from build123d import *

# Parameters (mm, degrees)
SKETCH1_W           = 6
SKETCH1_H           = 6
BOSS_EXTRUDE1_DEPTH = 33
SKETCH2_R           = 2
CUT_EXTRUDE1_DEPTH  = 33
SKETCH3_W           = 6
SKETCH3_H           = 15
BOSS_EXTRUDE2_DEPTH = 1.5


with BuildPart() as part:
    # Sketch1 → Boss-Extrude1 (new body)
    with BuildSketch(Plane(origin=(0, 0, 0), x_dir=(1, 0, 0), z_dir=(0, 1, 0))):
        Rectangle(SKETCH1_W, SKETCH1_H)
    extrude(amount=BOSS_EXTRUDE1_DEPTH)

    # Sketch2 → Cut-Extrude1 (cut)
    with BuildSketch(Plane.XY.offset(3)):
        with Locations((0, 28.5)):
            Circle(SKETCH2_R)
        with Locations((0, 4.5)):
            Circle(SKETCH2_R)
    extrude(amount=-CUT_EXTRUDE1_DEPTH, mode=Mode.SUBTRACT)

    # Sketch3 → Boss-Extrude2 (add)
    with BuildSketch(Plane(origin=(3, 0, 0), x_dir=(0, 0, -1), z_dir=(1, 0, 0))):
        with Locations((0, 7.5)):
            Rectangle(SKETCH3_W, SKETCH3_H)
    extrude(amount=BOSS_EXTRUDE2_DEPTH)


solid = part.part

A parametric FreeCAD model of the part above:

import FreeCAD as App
import Part
import Sketcher

V = App.Vector

doc = App.newDocument("Part")
body = doc.addObject("PartDesign::Body", "Body")

# Sketch on XZ plane
sketch1 = body.newObject("Sketcher::SketchObject", "Sketch")
sketch1.AttachmentSupport = (doc.getObject("XZ_Plane"), [""])
sketch1.MapMode = "FlatFace"
sketch1.addGeometry([
    Part.LineSegment(V(-3, -3, 0), V(-3, 3, 0)),
    Part.LineSegment(V(-3, 3, 0), V(3, 3, 0)),
    Part.LineSegment(V(3, 3, 0), V(3, -3, 0)),
    Part.LineSegment(V(3, -3, 0), V(-3, -3, 0)),
], False)
sketch1.addConstraint([
    Sketcher.Constraint("Coincident", 0, 2, 1, 1),
    Sketcher.Constraint("Coincident", 1, 2, 2, 1),
    Sketcher.Constraint("Coincident", 2, 2, 3, 1),
    Sketcher.Constraint("Coincident", 3, 2, 0, 1),
    Sketcher.Constraint("Vertical", 0),
    Sketcher.Constraint("Horizontal", 1),
    Sketcher.Constraint("Vertical", 2),
    Sketcher.Constraint("Horizontal", 3),
    Sketcher.Constraint("Symmetric", 0, 2, 2, 2, -1, 1),
    Sketcher.Constraint("Equal", 3, 0),
    Sketcher.Constraint("DistanceX", 1, 1, 1, 2, 6.0),
])
pad1 = body.newObject("PartDesign::Pad", "Pad")
pad1.Profile = sketch1
pad1.Length = 33
pad1.Reversed = True

# Sketch on XY plane
sketch2 = body.newObject("Sketcher::SketchObject", "Sketch001")
sketch2.AttachmentSupport = (doc.getObject("XY_Plane"), [""])
sketch2.MapMode = "FlatFace"
sketch2.AttachmentOffset = App.Placement(V(0, 0, 3), App.Rotation())
sketch2.addGeometry([
    Part.Circle(V(0, 28.5, 0), V(0, 0, 1), 2),
    Part.Circle(V(0, 4.5, 0), V(0, 0, 1), 2),
], False)
sketch2.addConstraint([
    Sketcher.Constraint("Equal", 0, 1),
    Sketcher.Constraint("PointOnObject", 0, 3, -2),
    Sketcher.Constraint("PointOnObject", 1, 3, -2),
    Sketcher.Constraint("Diameter", 0, 4.0),
    Sketcher.Constraint("DistanceY", 1, 3, 0, 3, 24.0),
    Sketcher.Constraint("DistanceY", -1, 1, 0, 3, 28.5),
])
pocket1 = body.newObject("PartDesign::Pocket", "Pocket")
pocket1.Profile = sketch2
pocket1.Length = 33

# Sketch on YZ plane
sketch3 = body.newObject("Sketcher::SketchObject", "Sketch002")
sketch3.AttachmentSupport = (doc.getObject("YZ_Plane"), [""])
sketch3.MapMode = "FlatFace"
sketch3.AttachmentOffset = App.Placement(V(0, 0, 3), App.Rotation())
sketch3.addGeometry([
    Part.LineSegment(V(15, 3, 0), V(0, 3, 0)),
    Part.LineSegment(V(0, 3, 0), V(0, -3, 0)),
    Part.LineSegment(V(0, -3, 0), V(15, -3, 0)),
    Part.LineSegment(V(15, -3, 0), V(15, 3, 0)),
], False)
sketch3.addConstraint([
    Sketcher.Constraint("Coincident", 0, 2, 1, 1),
    Sketcher.Constraint("Coincident", 1, 2, 2, 1),
    Sketcher.Constraint("Coincident", 2, 2, 3, 1),
    Sketcher.Constraint("Coincident", 3, 2, 0, 1),
    Sketcher.Constraint("Horizontal", 0),
    Sketcher.Constraint("Vertical", 1),
    Sketcher.Constraint("Horizontal", 2),
    Sketcher.Constraint("Vertical", 3),
    Sketcher.Constraint("Symmetric", 0, 2, 1, 2, -1, 1),
    Sketcher.Constraint("DistanceX", 0, 2, 0, 1, 15.0),
    Sketcher.Constraint("DistanceY", 1, 2, 1, 1, 6.0),
])
pad2 = body.newObject("PartDesign::Pad", "Pad001")
pad2.Profile = sketch3
pad2.Length = 1.5

doc.recompute()
